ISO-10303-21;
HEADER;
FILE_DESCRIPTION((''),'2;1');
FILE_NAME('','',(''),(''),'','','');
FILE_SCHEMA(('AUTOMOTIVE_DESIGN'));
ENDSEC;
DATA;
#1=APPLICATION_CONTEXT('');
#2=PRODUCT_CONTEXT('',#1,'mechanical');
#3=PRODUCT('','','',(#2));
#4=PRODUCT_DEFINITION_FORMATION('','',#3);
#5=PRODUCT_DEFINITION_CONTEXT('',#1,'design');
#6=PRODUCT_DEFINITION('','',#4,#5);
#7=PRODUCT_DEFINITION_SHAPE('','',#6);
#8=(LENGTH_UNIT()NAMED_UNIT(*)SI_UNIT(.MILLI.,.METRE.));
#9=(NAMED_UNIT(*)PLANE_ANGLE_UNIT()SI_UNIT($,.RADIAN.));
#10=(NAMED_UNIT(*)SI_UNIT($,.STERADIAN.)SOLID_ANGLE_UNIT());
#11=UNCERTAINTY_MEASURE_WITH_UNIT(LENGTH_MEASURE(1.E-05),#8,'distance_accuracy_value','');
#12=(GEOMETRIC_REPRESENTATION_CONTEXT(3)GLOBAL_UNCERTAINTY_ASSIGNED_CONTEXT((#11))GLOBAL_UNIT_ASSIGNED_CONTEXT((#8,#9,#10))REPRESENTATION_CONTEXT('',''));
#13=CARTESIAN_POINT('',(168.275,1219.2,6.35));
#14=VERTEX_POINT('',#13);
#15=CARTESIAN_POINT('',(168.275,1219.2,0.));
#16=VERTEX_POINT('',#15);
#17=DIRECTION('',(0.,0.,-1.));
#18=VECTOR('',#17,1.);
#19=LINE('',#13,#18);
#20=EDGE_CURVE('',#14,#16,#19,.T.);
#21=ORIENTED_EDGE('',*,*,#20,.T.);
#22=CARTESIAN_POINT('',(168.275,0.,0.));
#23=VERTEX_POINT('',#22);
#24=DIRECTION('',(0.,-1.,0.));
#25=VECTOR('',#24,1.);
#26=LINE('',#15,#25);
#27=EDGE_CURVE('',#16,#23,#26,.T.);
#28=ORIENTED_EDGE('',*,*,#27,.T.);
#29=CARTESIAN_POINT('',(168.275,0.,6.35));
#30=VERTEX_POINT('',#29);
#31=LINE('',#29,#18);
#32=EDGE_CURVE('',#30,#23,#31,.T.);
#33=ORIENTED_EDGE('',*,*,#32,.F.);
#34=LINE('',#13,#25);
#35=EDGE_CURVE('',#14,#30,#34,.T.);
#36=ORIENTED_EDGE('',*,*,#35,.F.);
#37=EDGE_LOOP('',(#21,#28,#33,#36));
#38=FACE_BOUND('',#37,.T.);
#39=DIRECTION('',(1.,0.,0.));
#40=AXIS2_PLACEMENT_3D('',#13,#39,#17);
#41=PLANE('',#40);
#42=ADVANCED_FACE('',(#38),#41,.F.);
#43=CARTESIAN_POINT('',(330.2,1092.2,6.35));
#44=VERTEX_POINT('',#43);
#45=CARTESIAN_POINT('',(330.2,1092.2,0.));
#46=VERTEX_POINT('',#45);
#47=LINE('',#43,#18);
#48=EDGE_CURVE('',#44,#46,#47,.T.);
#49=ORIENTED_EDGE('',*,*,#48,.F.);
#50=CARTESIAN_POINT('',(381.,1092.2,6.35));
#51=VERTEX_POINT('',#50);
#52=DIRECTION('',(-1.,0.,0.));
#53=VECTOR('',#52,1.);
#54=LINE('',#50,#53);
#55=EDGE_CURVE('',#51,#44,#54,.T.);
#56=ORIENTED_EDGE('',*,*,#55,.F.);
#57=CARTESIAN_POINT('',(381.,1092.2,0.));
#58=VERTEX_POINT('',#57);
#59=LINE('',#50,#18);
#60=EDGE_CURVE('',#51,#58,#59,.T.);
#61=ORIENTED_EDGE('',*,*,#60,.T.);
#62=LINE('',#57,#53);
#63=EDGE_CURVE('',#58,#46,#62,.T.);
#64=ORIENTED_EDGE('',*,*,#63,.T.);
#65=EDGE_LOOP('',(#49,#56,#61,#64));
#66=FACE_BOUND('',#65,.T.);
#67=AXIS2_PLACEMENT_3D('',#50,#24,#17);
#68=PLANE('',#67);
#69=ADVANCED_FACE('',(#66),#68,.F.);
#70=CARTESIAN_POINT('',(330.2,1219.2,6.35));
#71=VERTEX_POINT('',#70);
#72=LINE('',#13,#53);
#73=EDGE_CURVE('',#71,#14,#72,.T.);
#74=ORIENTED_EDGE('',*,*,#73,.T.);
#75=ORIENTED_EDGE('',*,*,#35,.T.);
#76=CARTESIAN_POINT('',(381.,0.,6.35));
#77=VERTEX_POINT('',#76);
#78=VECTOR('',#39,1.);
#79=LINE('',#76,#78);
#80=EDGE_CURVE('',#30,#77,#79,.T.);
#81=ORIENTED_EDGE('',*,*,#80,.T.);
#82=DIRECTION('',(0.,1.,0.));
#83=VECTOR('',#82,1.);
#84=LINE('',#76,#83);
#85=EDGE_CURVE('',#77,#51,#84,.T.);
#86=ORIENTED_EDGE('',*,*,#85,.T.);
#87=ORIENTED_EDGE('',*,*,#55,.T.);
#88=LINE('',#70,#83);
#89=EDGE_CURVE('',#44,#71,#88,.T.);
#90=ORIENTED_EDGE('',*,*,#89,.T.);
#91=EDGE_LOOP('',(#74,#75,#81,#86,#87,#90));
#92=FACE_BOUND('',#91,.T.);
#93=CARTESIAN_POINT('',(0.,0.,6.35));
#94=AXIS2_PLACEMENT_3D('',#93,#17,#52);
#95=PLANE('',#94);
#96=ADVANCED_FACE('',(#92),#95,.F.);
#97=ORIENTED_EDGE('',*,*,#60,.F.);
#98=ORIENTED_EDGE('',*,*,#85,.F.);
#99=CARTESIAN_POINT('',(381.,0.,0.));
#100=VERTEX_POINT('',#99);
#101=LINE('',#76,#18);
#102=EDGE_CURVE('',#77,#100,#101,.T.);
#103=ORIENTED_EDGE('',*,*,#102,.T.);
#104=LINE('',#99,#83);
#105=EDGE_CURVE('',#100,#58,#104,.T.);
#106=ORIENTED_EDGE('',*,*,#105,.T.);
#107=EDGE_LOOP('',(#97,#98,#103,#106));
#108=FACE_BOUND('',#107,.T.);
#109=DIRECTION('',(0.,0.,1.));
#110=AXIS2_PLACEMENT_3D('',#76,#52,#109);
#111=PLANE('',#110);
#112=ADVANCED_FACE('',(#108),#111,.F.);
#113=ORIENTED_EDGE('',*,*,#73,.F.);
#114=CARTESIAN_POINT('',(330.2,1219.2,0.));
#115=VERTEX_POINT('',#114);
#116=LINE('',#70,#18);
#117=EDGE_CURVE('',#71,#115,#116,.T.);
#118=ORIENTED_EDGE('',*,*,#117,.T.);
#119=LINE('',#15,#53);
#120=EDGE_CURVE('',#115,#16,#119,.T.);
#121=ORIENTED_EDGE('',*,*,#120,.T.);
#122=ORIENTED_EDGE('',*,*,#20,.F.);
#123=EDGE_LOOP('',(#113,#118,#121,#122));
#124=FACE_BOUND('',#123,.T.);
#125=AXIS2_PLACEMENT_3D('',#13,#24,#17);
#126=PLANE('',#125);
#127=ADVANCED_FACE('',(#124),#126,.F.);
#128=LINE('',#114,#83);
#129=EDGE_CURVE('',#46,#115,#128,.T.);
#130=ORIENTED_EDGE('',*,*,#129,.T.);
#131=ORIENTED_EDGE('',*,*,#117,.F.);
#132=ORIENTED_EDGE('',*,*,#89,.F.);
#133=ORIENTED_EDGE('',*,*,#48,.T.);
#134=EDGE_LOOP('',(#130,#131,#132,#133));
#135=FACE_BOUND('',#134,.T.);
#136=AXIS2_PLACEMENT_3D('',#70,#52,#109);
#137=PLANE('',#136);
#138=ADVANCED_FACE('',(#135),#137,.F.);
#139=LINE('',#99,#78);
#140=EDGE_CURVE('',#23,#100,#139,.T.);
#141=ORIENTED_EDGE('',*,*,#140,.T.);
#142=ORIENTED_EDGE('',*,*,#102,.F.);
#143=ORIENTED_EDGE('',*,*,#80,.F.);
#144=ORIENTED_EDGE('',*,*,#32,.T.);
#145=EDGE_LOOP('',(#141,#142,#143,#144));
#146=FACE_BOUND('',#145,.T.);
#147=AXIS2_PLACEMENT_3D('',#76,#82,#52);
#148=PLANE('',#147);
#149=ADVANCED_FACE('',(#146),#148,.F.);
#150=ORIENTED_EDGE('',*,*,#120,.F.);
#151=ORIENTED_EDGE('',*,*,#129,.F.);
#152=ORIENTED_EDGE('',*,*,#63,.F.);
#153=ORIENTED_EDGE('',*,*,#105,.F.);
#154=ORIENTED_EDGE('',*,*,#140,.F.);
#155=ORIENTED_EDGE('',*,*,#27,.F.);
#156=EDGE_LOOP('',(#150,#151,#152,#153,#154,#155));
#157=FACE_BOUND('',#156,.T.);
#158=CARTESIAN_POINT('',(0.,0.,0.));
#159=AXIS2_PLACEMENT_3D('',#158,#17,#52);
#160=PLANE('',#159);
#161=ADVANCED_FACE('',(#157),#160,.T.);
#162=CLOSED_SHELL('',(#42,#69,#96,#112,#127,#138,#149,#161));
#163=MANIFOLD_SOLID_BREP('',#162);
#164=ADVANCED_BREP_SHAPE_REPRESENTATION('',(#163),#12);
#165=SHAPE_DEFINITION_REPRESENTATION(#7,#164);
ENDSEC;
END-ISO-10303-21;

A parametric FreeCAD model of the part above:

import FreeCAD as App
import Part
import Sketcher
Q = App.Units.Quantity


def add_polygon(sketch, points):
    """Adds a closed chain of lines whose ends are joined by coincident constraints."""
    first, n = sketch.GeometryCount, len(points)
    for a, b in zip(points, points[1:] + points[:1]):
        sketch.addGeometry(Part.LineSegment(App.Vector(*a, 0), App.Vector(*b, 0)), False)
    for i in range(n):
        sketch.addConstraint(Sketcher.Constraint("Coincident", first + i, 2, first + (i + 1) % n, 1))

doc = App.newDocument("Part")
body = doc.addObject("PartDesign::Body", "Body")

# Sketch on XY plane
sketch1 = body.newObject("Sketcher::SketchObject", "Sketch")
sketch1.AttachmentSupport = (doc.getObject("XY_Plane"), [""])
sketch1.MapMode = "FlatFace"
add_polygon(sketch1, [(330.2, 1219.2), (168.275, 1219.2), (168.275, 0), (381, 0), (381, 1092.2), (330.2, 1092.2)])  # lines 0-5
sketch1.addConstraint([
    Sketcher.Constraint("Horizontal", 0),
    Sketcher.Constraint("Vertical", 1),
    Sketcher.Constraint("Horizontal", 2),
    Sketcher.Constraint("Vertical", 3),
    Sketcher.Constraint("Horizontal", 4),
    Sketcher.Constraint("Vertical", 5),
    Sketcher.Constraint("PointOnObject", 1, 2, -1),
    Sketcher.Constraint("DistanceX", 4, 2, 4, 1, Q("2 in")),
    Sketcher.Constraint("DistanceY", 1, 2, 1, 1, Q("48 in")),
    Sketcher.Constraint("DistanceY", 3, 1, 3, 2, Q("43 in")),
    Sketcher.Constraint("DistanceX", -1, 1, 2, 2, Q("15 in")),
    Sketcher.Constraint("DistanceX", 0, 2, 0, 1, Q("6.375 in")),
])
pad1 = body.newObject("PartDesign::Pad", "Pad")
pad1.Profile = sketch1
pad1.Length = Q("0.25 in")

doc.recompute()
